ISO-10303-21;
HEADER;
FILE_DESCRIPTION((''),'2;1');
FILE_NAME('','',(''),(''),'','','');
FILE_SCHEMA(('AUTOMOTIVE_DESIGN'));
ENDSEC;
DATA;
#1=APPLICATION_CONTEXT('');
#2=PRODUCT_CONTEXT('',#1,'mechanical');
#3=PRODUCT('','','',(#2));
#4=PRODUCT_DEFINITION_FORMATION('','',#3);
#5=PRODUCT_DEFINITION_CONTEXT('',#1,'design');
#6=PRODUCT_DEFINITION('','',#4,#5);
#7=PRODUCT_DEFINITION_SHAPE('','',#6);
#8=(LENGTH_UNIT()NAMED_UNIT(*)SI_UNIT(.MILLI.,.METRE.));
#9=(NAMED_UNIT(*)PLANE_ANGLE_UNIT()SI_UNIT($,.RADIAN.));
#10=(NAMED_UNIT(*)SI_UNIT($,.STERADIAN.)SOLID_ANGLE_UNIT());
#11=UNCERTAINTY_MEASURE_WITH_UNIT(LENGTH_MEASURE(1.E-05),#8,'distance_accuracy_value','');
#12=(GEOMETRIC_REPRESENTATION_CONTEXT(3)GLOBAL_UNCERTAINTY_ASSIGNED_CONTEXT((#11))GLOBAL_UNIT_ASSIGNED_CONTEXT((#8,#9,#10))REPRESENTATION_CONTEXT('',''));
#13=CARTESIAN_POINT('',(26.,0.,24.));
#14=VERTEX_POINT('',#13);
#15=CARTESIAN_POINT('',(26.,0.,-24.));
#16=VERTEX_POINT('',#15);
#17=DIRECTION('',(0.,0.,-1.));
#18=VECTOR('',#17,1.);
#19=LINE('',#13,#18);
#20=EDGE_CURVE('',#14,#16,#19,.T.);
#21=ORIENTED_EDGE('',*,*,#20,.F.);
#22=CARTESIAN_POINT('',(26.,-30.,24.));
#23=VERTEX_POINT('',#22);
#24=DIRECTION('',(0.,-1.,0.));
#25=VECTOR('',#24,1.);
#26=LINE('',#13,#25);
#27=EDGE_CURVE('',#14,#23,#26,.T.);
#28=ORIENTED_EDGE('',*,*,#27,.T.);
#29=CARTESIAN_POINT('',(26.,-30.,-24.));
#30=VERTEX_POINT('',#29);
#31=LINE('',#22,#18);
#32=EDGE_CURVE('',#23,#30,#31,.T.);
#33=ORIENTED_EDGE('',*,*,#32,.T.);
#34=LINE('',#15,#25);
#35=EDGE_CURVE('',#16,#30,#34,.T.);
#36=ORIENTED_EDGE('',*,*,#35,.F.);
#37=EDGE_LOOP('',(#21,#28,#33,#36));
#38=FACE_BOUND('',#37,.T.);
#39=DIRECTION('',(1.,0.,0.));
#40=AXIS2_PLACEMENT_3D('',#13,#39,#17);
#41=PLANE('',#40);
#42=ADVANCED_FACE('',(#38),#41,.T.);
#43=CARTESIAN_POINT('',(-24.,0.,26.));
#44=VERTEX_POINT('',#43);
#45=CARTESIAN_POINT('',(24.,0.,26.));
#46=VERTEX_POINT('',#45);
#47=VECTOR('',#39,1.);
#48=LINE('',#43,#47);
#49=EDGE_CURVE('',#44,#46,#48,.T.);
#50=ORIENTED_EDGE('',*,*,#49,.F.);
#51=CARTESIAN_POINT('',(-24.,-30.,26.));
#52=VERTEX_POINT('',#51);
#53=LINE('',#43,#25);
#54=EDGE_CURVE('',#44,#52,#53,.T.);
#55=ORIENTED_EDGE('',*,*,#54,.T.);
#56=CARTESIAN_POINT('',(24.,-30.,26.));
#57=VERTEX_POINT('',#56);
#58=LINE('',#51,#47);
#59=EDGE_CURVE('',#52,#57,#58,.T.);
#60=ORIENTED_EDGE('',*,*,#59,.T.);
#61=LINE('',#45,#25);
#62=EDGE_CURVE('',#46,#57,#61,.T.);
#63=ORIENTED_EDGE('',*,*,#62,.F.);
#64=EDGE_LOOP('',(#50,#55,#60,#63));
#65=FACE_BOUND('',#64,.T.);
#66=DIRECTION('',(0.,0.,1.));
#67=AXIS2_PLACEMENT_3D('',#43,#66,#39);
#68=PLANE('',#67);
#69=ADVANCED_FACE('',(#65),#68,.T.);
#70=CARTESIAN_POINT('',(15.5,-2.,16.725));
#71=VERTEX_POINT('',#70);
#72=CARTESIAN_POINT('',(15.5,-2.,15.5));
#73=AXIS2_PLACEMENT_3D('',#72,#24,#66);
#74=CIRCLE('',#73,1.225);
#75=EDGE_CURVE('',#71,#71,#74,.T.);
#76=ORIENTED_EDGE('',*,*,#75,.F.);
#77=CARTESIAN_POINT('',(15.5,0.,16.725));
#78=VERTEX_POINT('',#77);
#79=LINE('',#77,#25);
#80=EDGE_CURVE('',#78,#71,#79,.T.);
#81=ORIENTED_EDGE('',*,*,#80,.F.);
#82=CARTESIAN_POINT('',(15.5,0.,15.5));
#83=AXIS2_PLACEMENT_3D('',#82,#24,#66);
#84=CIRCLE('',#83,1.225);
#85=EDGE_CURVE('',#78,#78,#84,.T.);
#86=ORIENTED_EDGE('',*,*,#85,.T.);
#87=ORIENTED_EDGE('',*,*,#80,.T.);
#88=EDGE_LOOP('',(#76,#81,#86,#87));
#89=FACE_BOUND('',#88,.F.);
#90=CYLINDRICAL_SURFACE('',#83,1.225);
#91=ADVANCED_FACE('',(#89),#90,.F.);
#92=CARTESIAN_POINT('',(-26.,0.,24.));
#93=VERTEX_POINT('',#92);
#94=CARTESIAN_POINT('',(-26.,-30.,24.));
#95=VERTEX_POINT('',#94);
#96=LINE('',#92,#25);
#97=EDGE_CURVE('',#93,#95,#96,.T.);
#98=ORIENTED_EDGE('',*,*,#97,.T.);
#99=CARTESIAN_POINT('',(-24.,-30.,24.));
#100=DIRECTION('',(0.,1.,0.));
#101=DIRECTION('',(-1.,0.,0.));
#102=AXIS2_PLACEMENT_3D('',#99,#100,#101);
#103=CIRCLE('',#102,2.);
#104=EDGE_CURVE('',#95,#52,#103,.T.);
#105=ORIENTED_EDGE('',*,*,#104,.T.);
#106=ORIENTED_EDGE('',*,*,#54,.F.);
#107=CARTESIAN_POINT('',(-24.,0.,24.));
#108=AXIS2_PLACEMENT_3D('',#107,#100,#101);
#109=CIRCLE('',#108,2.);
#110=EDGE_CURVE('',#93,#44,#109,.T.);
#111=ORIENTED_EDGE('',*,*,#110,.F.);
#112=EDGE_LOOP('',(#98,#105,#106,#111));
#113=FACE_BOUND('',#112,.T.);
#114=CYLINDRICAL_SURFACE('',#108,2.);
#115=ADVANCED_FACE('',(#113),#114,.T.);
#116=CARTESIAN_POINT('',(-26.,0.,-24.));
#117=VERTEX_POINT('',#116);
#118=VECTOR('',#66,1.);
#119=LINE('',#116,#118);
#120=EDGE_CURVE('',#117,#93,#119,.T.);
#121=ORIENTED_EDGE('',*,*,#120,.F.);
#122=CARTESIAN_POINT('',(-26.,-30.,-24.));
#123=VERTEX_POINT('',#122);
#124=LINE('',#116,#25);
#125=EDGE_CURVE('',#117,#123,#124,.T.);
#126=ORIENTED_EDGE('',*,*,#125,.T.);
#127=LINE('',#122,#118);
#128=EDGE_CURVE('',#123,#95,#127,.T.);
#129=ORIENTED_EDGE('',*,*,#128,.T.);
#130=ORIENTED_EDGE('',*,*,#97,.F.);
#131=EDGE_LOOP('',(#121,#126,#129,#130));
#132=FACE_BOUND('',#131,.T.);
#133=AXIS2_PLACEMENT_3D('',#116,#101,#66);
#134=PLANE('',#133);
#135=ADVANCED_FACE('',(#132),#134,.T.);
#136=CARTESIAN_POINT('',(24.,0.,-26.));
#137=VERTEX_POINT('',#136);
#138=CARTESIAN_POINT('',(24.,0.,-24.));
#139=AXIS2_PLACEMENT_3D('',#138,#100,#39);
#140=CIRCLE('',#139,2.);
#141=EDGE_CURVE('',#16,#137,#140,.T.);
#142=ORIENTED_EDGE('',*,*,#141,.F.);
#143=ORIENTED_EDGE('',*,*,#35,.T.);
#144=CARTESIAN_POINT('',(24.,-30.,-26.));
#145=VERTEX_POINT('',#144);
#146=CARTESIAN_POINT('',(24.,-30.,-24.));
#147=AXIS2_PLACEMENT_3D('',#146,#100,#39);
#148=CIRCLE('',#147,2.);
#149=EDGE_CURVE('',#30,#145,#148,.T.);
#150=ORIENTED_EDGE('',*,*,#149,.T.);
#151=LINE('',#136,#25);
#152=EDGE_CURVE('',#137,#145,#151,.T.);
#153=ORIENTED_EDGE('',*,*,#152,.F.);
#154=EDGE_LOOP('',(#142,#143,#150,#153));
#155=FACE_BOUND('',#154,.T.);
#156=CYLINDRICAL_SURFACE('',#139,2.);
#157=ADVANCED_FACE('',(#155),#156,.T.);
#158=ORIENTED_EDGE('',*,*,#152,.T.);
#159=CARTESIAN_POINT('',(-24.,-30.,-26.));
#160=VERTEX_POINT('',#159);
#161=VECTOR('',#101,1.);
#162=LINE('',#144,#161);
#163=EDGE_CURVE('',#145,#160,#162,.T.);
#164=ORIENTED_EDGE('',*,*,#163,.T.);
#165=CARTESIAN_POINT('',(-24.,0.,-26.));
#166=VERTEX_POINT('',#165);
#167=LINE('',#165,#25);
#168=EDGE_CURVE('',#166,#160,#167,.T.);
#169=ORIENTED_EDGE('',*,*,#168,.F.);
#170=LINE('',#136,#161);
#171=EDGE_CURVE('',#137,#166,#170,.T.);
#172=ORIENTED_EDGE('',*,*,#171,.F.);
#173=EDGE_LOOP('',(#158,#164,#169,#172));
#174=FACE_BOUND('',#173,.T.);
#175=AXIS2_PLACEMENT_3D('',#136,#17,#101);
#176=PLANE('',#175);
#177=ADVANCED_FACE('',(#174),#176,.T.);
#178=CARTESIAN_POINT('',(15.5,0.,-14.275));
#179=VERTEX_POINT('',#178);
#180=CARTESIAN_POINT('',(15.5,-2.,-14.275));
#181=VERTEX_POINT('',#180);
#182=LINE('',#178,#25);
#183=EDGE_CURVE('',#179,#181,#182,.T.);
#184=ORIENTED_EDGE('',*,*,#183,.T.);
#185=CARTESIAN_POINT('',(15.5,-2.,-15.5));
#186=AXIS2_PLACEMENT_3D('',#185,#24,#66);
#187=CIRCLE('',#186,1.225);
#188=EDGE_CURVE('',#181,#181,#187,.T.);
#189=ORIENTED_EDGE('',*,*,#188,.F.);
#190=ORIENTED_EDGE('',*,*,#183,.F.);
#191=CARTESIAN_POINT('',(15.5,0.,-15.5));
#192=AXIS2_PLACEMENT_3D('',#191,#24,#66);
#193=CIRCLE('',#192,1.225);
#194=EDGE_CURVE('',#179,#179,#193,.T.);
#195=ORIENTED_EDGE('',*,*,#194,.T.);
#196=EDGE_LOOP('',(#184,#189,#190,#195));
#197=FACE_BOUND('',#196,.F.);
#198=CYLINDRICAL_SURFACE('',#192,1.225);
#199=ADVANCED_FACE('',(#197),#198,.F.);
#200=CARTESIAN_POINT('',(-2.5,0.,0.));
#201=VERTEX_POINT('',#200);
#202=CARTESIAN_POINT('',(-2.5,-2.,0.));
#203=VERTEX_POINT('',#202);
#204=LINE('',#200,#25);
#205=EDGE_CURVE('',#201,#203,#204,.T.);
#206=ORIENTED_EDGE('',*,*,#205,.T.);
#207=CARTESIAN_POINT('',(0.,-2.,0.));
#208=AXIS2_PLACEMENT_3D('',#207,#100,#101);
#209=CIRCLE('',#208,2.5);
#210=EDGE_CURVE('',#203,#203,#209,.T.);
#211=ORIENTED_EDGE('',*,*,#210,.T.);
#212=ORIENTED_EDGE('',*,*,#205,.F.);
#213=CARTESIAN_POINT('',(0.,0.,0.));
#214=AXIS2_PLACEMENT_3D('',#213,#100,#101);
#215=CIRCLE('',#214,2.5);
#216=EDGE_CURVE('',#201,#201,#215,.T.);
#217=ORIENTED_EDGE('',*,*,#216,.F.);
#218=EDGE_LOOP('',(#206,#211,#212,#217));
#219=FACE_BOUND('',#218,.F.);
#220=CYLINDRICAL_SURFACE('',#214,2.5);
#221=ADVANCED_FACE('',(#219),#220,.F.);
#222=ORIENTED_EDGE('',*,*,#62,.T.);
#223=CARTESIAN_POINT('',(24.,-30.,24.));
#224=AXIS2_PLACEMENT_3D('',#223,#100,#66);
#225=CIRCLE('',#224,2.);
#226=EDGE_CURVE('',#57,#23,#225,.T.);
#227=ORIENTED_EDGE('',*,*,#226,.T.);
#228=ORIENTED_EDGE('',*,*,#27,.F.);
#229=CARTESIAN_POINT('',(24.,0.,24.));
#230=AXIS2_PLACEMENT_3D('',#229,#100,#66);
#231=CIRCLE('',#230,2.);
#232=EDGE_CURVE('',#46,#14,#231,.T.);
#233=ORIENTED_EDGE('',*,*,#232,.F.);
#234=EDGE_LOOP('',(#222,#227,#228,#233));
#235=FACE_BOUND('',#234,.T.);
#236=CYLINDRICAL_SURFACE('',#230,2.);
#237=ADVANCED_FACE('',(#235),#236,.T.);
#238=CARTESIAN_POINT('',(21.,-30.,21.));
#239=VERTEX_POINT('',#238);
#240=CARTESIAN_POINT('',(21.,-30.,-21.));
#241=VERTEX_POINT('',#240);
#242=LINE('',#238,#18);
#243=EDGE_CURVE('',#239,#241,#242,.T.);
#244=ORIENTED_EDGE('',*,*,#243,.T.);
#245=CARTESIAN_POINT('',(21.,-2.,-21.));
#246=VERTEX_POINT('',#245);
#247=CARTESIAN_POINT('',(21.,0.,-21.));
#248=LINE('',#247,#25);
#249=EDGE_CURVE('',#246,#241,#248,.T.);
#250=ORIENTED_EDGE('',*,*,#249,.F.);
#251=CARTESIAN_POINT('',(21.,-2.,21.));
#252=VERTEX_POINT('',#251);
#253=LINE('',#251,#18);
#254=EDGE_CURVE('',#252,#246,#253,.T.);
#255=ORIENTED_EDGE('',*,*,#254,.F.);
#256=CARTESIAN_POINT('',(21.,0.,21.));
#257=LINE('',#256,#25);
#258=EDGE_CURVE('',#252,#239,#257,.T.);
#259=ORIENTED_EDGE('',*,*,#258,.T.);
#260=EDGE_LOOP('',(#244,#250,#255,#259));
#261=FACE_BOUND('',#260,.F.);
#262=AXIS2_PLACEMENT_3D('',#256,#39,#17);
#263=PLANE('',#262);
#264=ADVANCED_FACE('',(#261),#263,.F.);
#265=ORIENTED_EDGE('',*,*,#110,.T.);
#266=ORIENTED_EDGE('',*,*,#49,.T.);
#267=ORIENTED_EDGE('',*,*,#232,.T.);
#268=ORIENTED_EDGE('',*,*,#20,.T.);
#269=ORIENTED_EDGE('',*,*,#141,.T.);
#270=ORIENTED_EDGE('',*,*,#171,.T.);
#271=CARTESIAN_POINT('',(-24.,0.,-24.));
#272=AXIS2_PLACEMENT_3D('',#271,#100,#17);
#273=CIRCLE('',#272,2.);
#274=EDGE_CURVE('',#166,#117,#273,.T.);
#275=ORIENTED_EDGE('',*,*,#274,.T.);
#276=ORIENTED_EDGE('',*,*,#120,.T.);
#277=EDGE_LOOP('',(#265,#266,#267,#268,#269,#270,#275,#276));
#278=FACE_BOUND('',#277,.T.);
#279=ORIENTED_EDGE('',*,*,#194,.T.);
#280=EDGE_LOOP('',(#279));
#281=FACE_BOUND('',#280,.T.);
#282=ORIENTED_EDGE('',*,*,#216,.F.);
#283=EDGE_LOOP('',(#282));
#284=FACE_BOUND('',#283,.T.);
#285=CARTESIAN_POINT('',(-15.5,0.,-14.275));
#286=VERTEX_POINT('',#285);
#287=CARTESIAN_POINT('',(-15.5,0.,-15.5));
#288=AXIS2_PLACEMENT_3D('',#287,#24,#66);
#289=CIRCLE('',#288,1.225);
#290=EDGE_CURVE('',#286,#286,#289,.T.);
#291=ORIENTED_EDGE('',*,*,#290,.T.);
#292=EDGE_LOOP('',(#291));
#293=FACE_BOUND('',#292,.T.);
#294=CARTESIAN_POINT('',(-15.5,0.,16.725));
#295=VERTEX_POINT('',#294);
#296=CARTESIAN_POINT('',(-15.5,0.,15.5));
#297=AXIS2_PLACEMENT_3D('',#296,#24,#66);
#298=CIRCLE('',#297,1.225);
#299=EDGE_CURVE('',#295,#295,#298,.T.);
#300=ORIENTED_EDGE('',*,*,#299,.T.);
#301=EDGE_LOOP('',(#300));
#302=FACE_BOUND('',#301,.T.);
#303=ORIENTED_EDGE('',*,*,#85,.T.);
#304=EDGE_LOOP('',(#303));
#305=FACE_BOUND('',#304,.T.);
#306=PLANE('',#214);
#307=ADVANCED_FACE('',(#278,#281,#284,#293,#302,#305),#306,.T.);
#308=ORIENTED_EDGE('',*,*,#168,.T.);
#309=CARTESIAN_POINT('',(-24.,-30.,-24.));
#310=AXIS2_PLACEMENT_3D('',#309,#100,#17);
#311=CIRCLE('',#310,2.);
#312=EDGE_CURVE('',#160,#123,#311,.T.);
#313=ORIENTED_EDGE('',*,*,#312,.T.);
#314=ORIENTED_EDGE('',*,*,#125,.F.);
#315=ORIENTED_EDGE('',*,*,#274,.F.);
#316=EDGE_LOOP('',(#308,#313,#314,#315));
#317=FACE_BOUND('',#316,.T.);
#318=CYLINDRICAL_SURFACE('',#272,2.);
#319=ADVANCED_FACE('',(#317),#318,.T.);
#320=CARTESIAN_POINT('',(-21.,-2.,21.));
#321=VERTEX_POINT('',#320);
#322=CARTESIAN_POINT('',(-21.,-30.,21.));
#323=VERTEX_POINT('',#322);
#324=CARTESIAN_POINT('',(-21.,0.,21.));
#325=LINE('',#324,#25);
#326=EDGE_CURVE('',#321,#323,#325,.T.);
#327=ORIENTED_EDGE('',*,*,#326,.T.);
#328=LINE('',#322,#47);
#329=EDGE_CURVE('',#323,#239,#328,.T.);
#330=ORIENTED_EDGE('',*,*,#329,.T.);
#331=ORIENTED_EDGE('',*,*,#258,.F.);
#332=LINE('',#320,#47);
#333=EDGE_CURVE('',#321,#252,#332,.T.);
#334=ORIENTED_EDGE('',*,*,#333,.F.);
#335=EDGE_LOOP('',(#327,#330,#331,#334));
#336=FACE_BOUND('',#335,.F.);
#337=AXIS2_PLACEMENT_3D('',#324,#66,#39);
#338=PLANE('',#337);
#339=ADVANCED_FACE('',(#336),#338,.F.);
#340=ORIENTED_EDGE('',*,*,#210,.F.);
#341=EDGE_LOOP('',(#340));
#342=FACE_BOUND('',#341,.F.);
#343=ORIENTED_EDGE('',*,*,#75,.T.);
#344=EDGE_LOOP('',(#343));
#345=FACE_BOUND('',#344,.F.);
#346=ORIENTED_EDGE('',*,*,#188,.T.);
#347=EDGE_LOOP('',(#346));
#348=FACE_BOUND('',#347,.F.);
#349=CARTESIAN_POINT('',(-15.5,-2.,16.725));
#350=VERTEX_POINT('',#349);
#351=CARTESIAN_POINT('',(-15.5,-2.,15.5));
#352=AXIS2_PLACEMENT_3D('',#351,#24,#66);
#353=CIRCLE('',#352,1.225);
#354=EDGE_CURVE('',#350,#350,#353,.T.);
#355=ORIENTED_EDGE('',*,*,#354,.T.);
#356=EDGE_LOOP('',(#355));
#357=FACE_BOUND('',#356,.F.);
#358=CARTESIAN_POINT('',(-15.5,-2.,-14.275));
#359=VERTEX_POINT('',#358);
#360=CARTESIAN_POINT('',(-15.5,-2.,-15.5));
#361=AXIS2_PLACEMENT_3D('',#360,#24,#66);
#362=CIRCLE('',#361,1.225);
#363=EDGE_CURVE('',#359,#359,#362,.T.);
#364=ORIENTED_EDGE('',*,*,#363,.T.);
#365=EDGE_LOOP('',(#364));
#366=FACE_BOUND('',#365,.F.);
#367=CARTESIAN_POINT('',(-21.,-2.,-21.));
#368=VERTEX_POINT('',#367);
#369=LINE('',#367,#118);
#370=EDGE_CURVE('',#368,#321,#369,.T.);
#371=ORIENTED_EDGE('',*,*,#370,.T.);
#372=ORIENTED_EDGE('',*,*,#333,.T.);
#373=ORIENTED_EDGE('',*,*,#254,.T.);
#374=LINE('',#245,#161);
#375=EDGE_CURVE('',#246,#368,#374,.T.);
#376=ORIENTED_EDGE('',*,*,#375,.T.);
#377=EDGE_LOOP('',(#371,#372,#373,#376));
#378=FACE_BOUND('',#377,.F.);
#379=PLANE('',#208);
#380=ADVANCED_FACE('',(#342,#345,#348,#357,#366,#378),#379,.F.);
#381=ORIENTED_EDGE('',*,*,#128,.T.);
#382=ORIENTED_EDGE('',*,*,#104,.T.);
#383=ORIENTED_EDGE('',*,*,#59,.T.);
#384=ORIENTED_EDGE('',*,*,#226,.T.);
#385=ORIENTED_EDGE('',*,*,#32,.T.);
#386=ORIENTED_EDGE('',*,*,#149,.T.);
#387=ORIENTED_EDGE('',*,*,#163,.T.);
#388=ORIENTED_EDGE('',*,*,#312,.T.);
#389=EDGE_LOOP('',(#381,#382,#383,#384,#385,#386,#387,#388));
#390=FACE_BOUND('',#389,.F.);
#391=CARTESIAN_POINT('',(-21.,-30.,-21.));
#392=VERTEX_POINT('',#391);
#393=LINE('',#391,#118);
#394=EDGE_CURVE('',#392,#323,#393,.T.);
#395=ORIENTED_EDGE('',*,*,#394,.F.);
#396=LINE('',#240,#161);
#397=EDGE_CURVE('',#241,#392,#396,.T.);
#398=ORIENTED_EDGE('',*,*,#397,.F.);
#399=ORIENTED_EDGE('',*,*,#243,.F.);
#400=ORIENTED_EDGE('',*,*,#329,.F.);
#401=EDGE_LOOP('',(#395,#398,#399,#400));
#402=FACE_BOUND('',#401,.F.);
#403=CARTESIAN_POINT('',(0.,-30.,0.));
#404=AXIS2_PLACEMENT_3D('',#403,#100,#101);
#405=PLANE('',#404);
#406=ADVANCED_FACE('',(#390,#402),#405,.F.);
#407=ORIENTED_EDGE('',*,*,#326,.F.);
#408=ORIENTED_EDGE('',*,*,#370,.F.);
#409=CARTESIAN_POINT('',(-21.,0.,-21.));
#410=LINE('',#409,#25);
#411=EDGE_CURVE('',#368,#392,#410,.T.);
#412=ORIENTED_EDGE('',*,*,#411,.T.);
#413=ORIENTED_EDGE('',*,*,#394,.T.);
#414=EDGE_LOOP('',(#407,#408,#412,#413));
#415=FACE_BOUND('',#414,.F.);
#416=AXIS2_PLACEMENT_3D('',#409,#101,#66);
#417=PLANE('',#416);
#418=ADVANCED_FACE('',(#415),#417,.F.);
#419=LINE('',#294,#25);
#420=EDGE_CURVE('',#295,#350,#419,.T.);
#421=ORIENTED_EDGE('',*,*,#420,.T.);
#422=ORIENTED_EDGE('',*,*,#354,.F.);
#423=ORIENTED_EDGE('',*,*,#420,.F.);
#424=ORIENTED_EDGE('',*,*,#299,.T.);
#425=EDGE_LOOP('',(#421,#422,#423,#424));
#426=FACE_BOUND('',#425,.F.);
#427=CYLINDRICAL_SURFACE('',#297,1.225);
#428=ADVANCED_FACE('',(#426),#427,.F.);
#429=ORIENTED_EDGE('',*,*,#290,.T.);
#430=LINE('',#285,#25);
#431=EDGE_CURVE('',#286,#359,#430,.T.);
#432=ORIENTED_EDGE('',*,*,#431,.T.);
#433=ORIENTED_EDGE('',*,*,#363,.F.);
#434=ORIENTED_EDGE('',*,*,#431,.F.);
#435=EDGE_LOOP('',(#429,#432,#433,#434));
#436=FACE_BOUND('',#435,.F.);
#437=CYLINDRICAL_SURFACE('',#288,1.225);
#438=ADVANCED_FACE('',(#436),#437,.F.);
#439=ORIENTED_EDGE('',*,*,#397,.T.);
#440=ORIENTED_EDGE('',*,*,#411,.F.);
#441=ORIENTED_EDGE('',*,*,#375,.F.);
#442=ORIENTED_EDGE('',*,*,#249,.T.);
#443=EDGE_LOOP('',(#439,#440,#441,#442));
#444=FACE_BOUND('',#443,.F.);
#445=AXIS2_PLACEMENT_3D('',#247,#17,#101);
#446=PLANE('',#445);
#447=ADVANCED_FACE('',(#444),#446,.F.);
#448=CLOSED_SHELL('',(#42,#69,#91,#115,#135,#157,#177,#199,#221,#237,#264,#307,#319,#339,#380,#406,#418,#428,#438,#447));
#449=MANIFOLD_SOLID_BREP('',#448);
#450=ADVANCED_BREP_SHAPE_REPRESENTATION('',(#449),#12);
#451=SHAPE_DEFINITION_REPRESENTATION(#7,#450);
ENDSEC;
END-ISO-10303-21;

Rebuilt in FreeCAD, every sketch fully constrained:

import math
import FreeCAD as App
import Part
import Sketcher
Q = App.Units.Quantity


def add_polygon(sketch, points):
    """Adds a closed chain of lines whose ends are joined by coincident constraints."""
    first, n = sketch.GeometryCount, len(points)
    for a, b in zip(points, points[1:] + points[:1]):
        sketch.addGeometry(Part.LineSegment(App.Vector(*a, 0), App.Vector(*b, 0)), False)
    for i in range(n):
        sketch.addConstraint(Sketcher.Constraint("Coincident", first + i, 2, first + (i + 1) % n, 1))

doc = App.newDocument("Part")
body = doc.addObject("PartDesign::Body", "Body")

# Sketch on XZ plane
sketch1 = body.newObject("Sketcher::SketchObject", "Sketch")
sketch1.AttachmentSupport = (doc.getObject("XZ_Plane"), [""])
sketch1.MapMode = "FlatFace"
add_polygon(sketch1, [(-21, -21), (-21, 21), (21, 21), (21, -21)])  # lines 0-3
sketch1.addConstraint([
    Sketcher.Constraint("Vertical", 0),
    Sketcher.Constraint("Horizontal", 1),
    Sketcher.Constraint("Vertical", 2),
    Sketcher.Constraint("Horizontal", 3),
    Sketcher.Constraint("Symmetric", 0, 2, 2, 2, -1, 1),
    Sketcher.Constraint("Equal", 3, 0),
    Sketcher.Constraint("DistanceX", 1, 1, 1, 2, Q("42 mm")),
])
pad1 = body.newObject("PartDesign::Pad", "Pad")
pad1.Profile = sketch1
pad1.Length = 2

# Sketch on XZ plane
sketch2 = body.newObject("Sketcher::SketchObject", "Sketch001")
sketch2.AttachmentSupport = (doc.getObject("XZ_Plane"), [""])
sketch2.MapMode = "FlatFace"
sketch2.addGeometry(Part.ArcOfCircle(Part.Circle(App.Vector(-24, 24, 0), App.Vector(0, 0, 1), 2), math.radians(90), math.radians(180)), False)  # 0
sketch2.addGeometry(Part.LineSegment(App.Vector(-24, 26, 0), App.Vector(24, 26, 0)), False)  # 1
sketch2.addGeometry(Part.ArcOfCircle(Part.Circle(App.Vector(24, 24, 0), App.Vector(0, 0, 1), 2), math.radians(0), math.radians(90)), False)  # 2
sketch2.addGeometry(Part.LineSegment(App.Vector(26, 24, 0), App.Vector(26, -24, 0)), False)  # 3
sketch2.addGeometry(Part.ArcOfCircle(Part.Circle(App.Vector(24, -24, 0), App.Vector(0, 0, 1), 2), math.radians(-90), math.radians(0)), False)  # 4
sketch2.addGeometry(Part.LineSegment(App.Vector(24, -26, 0), App.Vector(-24, -26, 0)), False)  # 5
sketch2.addGeometry(Part.ArcOfCircle(Part.Circle(App.Vector(-24, -24, 0), App.Vector(0, 0, 1), 2), math.radians(180), math.radians(270)), False)  # 6
sketch2.addGeometry(Part.LineSegment(App.Vector(-26, -24, 0), App.Vector(-26, 24, 0)), False)  # 7
add_polygon(sketch2, [(21, 21), (-21, 21), (-21, -21), (21, -21)])  # lines 8-11
sketch2.addConstraint([
    Sketcher.Constraint("Tangent", 0, 1, 1, 1),
    Sketcher.Constraint("Tangent", 1, 2, 2, 2),
    Sketcher.Constraint("Tangent", 2, 1, 3, 1),
    Sketcher.Constraint("Tangent", 3, 2, 4, 2),
    Sketcher.Constraint("Tangent", 4, 1, 5, 1),
    Sketcher.Constraint("Tangent", 5, 2, 6, 2),
    Sketcher.Constraint("Tangent", 6, 1, 7, 1),
    Sketcher.Constraint("Tangent", 7, 2, 0, 2),
    Sketcher.Constraint("Horizontal", 1),
    Sketcher.Constraint("Vertical", 3),
    Sketcher.Constraint("Horizontal", 5),
    Sketcher.Constraint("Vertical", 7),
    Sketcher.Constraint("Horizontal", 8),
    Sketcher.Constraint("Vertical", 9),
    Sketcher.Constraint("Horizontal", 10),
    Sketcher.Constraint("Vertical", 11),
    Sketcher.Constraint("Equal", 0, 2),
    Sketcher.Constraint("Equal", 2, 4),
    Sketcher.Constraint("Equal", 4, 6),
    Sketcher.Constraint("Symmetric", 0, 3, 4, 3, -1, 1),
    Sketcher.Constraint("Symmetric", 8, 2, 10, 2, -1, 1),
    Sketcher.Constraint("Equal", 5, 3),
    Sketcher.Constraint("Equal", 10, 9),
    Sketcher.Constraint("Radius", 0, Q("2 mm")),
    Sketcher.Constraint("DistanceX", 8, 2, 8, 1, Q("42 mm")),
    Sketcher.Constraint("DistanceY", 8, 2, 0, 1, Q("5 mm")),
])
pad2 = body.newObject("PartDesign::Pad", "Pad001")
pad2.Profile = sketch2
pad2.Length = 30

# Sketch on XZ plane
sketch3 = body.newObject("Sketcher::SketchObject", "Sketch002")
sketch3.AttachmentSupport = (doc.getObject("XZ_Plane"), [""])
sketch3.MapMode = "FlatFace"
sketch3.addGeometry([
    Part.Circle(App.Vector(-15.5, -15.5, 0), App.Vector(0, 0, 1), 1.2),
    Part.Circle(App.Vector(-15.5, 15.5, 0), App.Vector(0, 0, 1), 1.2),
    Part.Circle(App.Vector(15.5, 15.5, 0), App.Vector(0, 0, 1), 1.2),
    Part.Circle(App.Vector(15.5, -15.5, 0), App.Vector(0, 0, 1), 1.2),
], False)
sketch3.addConstraint([
    Sketcher.Constraint("Equal", 0, 1),
    Sketcher.Constraint("Equal", 1, 2),
    Sketcher.Constraint("Equal", 2, 3),
    Sketcher.Constraint("Symmetric", 0, 3, 2, 3, -1, 1),
    Sketcher.Constraint("Symmetric", 1, 3, 3, 3, -1, 1),
    Sketcher.Constraint("Symmetric", 1, 3, 2, 3, -2),
    Sketcher.Constraint("Diameter", 0, Q("2.45 mm")),
    Sketcher.Constraint("DistanceY", 0, 3, 1, 3, Q("31 mm")),
    Sketcher.Constraint("DistanceX", 1, 3, 2, 3, Q("31 mm")),
])
doc.recompute()
hole = body.newObject("PartDesign::Hole", "Hole")
hole.Profile = sketch3
hole.ThreadType = "None"
hole.Diameter = 2.45
hole.DepthType = "ThroughAll"
hole.Reversed = True

# Sketch on XZ plane
sketch4 = body.newObject("Sketcher::SketchObject", "Sketch003")
sketch4.AttachmentSupport = (doc.getObject("XZ_Plane"), [""])
sketch4.MapMode = "FlatFace"
sketch4.addGeometry(Part.Circle(App.Vector(0, 0, 0), App.Vector(0, 0, 1), 2.5), False)
sketch4.addConstraint([
    Sketcher.Constraint("Coincident", 0, 3, -1, 1),
    Sketcher.Constraint("Diameter", 0, Q("5 mm")),
])
pocket1 = body.newObject("PartDesign::Pocket", "Pocket")
pocket1.Profile = sketch4
pocket1.Length = 2
pocket1.Reversed = True

doc.recompute()
